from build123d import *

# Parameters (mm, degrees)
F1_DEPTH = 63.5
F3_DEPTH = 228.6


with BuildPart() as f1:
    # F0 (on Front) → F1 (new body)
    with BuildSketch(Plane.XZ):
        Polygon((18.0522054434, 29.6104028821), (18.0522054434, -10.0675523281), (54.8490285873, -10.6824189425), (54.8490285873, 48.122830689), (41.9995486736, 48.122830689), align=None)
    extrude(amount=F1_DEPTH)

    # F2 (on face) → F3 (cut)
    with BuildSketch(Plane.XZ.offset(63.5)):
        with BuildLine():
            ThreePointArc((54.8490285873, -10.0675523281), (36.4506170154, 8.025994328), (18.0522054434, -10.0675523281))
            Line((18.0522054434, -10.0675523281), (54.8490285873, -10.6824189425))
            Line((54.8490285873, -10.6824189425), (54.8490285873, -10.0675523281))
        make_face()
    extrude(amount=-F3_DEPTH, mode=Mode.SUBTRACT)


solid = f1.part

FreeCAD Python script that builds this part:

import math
import FreeCAD as App
import Part
import Sketcher

V = App.Vector
Q = App.Units.Quantity

doc = App.newDocument("Part")
body = doc.addObject("PartDesign::Body", "Body")

sketch1 = doc.addObject("Sketcher::SketchObject", "Sketch")
body.addObject(sketch1)
sketch1.AttachmentSupport = (doc.XZ_Plane, [""])
sketch1.MapMode = "FlatFace"
sketch1.addGeometry([
    Part.LineSegment(V(18.052205, 29.610403, 0), V(18.052205, -10.067552, 0)),
    Part.LineSegment(V(18.052205, -10.067552, 0), V(54.849029, -10.682419, 0)),
    Part.LineSegment(V(54.849029, -10.682419, 0), V(54.849029, 48.122831, 0)),
    Part.LineSegment(V(54.849029, 48.122831, 0), V(41.999549, 48.122831, 0)),
    Part.LineSegment(V(41.999549, 48.122831, 0), V(18.052205, 29.610403, 0)),
], False)
sketch1.addConstraint([
    Sketcher.Constraint("Coincident", 0, 2, 1, 1),
    Sketcher.Constraint("Coincident", 1, 2, 2, 1),
    Sketcher.Constraint("Coincident", 2, 2, 3, 1),
    Sketcher.Constraint("Coincident", 3, 2, 4, 1),
    Sketcher.Constraint("Coincident", 4, 2, 0, 1),
    Sketcher.Constraint("Vertical", 0),
    Sketcher.Constraint("Vertical", 2),
    Sketcher.Constraint("Horizontal", 3),
    Sketcher.Constraint("DistanceX", 3, 2, 3, 1, 12.84948),
    Sketcher.Constraint("DistanceY", 2, 1, 2, 2, 58.80525),
    Sketcher.Constraint("Distance", 1, 36.80196),
    Sketcher.Constraint("Distance", 4, 30.268552),
    Sketcher.Constraint("DistanceY", 0, 2, 0, 1, 39.677955),
    Sketcher.Constraint("DistanceX", -1, 1, 1, 2, 54.849029),
    Sketcher.Constraint("DistanceY", 1, 2, -1, 1, 10.682419),
])
pad1 = doc.addObject("PartDesign::Pad", "Pad")
body.addObject(pad1)
pad1.Profile = sketch1
pad1.Length = Q("2.5 in")

sketch2 = doc.addObject("Sketcher::SketchObject", "Sketch001")
body.addObject(sketch2)
sketch2.AttachmentSupport = (doc.XZ_Plane, [""])
sketch2.MapMode = "FlatFace"
sketch2.AttachmentOffset = App.Placement(V(0, 0, 2.5 * 25.4), App.Rotation())
sketch2.addGeometry([
    Part.ArcOfCircle(Part.Circle(V(36.450617, -10.374986, 0), V(0, 0, 1), 18.40098), math.radians(0.95731), math.radians(179.04269)),
    Part.LineSegment(V(18.052205, -10.067552, 0), V(54.849029, -10.682419, 0)),
    Part.LineSegment(V(54.849029, -10.682419, 0), V(54.849029, -10.067552, 0)),
], False)
sketch2.addConstraint([
    Sketcher.Constraint("Coincident", 0, 2, 1, 1),
    Sketcher.Constraint("Coincident", 1, 2, 2, 1),
    Sketcher.Constraint("Coincident", 2, 2, 0, 1),
    Sketcher.Constraint("Vertical", 2),
    Sketcher.Constraint("Horizontal", 0, 2, 2, 2),
    Sketcher.Constraint("Radius", 0, 18.40098),
    Sketcher.Constraint("Distance", 1, 36.80196),
    Sketcher.Constraint("DistanceY", 2, 1, 2, 2, 0.614867),
    Sketcher.Constraint("DistanceX", -1, 1, 1, 2, 54.849029),
    Sketcher.Constraint("DistanceY", 1, 2, -1, 1, 10.682419),
])
pocket1 = doc.addObject("PartDesign::Pocket", "Pocket")
body.addObject(pocket1)
pocket1.Profile = sketch2
pocket1.Length = Q("9 in")

doc.recompute()
